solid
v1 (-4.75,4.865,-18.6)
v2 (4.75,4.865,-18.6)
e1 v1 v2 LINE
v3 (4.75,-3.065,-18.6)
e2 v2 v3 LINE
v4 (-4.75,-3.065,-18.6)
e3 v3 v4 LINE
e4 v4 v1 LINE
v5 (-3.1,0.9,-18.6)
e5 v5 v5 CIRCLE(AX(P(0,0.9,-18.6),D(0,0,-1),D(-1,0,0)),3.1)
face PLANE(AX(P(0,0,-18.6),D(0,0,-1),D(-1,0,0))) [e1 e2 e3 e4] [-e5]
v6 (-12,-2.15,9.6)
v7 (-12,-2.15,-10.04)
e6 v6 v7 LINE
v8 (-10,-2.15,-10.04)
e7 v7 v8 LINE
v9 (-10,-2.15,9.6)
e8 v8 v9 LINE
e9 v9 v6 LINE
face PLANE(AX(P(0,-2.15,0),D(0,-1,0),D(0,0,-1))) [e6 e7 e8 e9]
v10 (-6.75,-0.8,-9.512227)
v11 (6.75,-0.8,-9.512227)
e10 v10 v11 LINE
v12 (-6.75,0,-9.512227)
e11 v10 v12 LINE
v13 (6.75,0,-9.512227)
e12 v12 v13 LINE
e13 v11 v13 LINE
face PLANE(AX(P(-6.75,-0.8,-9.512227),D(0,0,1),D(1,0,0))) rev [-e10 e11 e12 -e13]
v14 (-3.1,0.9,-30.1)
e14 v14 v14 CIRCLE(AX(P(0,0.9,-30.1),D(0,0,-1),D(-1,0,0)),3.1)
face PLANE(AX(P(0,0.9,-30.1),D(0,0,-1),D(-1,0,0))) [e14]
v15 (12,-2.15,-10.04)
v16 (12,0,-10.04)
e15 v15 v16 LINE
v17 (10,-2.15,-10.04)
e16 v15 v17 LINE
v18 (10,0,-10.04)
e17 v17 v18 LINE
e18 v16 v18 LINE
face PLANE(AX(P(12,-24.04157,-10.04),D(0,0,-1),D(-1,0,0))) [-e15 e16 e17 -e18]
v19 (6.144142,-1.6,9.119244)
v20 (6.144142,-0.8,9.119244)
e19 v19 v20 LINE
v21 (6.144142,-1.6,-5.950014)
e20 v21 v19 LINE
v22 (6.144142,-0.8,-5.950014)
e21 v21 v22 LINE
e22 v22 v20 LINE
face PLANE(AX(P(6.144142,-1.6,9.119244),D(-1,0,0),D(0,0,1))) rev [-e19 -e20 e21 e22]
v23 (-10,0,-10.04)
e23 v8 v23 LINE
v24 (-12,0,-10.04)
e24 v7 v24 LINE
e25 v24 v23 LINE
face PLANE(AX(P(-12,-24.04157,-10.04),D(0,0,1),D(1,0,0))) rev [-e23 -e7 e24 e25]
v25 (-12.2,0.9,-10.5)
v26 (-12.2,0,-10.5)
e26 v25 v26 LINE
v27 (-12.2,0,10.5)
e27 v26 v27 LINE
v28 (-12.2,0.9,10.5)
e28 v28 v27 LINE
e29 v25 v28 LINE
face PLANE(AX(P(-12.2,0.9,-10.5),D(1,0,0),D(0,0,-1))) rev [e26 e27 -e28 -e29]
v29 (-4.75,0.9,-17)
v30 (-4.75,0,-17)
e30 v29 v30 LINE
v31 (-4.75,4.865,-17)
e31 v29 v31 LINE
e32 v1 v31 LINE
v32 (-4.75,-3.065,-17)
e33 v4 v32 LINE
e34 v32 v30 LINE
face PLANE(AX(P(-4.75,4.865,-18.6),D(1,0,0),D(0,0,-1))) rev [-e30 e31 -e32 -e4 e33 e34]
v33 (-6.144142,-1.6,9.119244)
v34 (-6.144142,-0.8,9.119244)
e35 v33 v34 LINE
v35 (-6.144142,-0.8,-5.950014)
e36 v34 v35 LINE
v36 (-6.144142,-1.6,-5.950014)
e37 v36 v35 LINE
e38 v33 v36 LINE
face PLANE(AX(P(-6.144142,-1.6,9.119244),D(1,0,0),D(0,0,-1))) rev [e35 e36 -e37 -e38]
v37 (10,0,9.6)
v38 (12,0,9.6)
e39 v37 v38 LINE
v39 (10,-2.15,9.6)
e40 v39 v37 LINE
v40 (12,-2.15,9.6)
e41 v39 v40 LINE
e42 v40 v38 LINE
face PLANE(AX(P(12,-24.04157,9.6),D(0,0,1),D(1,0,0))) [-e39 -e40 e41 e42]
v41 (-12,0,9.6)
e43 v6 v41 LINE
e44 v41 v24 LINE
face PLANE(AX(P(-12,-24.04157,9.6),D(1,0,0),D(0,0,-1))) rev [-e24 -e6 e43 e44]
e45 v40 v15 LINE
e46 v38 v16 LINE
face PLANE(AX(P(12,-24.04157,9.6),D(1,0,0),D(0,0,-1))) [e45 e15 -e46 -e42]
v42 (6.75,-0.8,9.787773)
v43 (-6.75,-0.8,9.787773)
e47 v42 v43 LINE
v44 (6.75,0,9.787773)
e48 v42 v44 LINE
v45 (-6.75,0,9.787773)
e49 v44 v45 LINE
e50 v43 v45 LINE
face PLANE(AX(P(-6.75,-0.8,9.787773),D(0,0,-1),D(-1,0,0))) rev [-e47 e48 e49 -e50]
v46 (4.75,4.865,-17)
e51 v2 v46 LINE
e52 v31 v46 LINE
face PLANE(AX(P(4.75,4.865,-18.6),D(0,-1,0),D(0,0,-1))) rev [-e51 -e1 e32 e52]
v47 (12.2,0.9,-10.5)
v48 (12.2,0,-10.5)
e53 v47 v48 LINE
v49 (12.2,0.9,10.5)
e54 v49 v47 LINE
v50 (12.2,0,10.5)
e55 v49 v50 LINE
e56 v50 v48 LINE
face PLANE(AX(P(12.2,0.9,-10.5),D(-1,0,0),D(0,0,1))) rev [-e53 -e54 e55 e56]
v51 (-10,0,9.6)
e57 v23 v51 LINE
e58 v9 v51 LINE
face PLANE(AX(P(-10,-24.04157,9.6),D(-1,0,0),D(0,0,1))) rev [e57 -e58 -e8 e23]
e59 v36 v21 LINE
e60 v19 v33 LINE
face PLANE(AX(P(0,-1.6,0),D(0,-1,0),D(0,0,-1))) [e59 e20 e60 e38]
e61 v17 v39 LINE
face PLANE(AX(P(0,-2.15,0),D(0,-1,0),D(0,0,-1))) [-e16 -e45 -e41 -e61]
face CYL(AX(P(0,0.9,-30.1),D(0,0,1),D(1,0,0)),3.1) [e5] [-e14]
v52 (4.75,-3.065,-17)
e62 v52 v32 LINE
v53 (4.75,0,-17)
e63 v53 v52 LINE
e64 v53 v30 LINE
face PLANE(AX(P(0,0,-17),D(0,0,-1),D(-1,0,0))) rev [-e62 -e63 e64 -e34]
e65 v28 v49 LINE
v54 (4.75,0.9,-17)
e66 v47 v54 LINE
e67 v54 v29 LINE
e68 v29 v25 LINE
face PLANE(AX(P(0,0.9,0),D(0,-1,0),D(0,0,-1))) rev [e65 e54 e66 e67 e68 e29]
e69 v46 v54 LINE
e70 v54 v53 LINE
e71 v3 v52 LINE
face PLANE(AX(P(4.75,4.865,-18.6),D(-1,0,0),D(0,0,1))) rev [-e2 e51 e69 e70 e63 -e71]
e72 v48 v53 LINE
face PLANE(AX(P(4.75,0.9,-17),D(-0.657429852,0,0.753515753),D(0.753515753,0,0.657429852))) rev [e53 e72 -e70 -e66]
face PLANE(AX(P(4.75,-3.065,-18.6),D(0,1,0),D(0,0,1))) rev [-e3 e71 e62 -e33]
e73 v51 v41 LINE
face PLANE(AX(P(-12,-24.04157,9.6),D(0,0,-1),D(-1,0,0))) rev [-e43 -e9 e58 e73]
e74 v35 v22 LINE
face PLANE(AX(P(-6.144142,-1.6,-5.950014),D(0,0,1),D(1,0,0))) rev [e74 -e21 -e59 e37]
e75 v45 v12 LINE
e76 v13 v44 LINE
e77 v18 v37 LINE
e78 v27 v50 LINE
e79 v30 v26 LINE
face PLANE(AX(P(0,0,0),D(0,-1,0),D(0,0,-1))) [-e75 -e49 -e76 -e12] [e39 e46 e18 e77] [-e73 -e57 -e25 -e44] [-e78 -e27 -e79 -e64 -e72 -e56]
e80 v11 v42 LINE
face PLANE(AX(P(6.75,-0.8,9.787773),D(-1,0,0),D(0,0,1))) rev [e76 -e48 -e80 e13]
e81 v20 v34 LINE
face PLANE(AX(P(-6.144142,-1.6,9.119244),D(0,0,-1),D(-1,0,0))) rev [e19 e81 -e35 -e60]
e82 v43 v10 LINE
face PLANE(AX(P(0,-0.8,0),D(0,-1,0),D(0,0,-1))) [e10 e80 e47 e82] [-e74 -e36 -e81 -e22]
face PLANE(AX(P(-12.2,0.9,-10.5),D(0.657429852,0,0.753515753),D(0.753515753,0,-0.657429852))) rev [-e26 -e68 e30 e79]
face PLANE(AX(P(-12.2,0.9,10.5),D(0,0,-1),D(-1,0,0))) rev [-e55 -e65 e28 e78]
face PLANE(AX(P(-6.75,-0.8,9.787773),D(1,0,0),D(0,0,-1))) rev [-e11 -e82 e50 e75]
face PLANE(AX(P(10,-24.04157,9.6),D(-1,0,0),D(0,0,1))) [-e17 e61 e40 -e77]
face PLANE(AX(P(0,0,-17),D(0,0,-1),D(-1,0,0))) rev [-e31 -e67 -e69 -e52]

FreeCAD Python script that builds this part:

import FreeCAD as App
import Part
import Sketcher

V = App.Vector


def add_polygon(sketch, points):
    """Adds a closed chain of lines whose ends are joined by coincident constraints."""
    first, n = sketch.GeometryCount, len(points)
    for a, b in zip(points, points[1:] + points[:1]):
        sketch.addGeometry(Part.LineSegment(App.Vector(*a, 0), App.Vector(*b, 0)), False)
    for i in range(n):
        sketch.addConstraint(Sketcher.Constraint("Coincident", first + i, 2, first + (i + 1) % n, 1))

doc = App.newDocument("Part")
params = doc.addObject("Spreadsheet::Sheet", "Params")
for row, (alias, value) in enumerate([
    ("sketch1_height", "21 mm"),
    ("sketch1_width", "24.4 mm"),
    ("sketch1_width2", "9.5 mm"),
    ("pad1_length", "0.9 mm"),
    ("sketch2_width", "9.5 mm"),
    ("sketch2_height", "7.93 mm"),
    ("pad2_length", "1.6 mm"),
    ("sketch3_diameter", "6.2 mm"),
    ("pad3_length", "11.5 mm"),
    ("sketch4_width", "2 mm"),
    ("sketch4_height", "19.64 mm"),
    ("pad4_length", "2.15 mm"),
    ("sketch5_width", "13.5 mm"),
    ("sketch5_height", "19.3 mm"),
    ("pad5_length", "0.8 mm"),
    ("pad6_length", "0.8 mm"),
], start=1):
    params.set(f"A{row}", alias)
    params.set(f"B{row}", "=" + value)
    params.setAlias(f"B{row}", alias)

body = doc.addObject("PartDesign::Body", "Body")

# Sketch on XZ plane
sketch1 = doc.addObject("Sketcher::SketchObject", "Sketch")
body.addObject(sketch1)
sketch1.AttachmentSupport = (doc.XZ_Plane, [""])
sketch1.MapMode = "FlatFace"
add_polygon(sketch1, [(-12, -10), (-12, 10), (12, 10), (12, -10), (5, -17), (-5, -17)])  # lines 0-5
sketch1.addConstraint([
    Sketcher.Constraint("Vertical", 0),
    Sketcher.Constraint("Horizontal", 1),
    Sketcher.Constraint("Vertical", 2),
    Sketcher.Constraint("Horizontal", 4),
    Sketcher.Constraint("Symmetric", 0, 2, 2, 2, -1, 1),
    Sketcher.Constraint("Horizontal", 2, 2, 5, 2),
    Sketcher.Constraint("Equal", 3, 5),
    Sketcher.Constraint("DistanceY", 0, 1, 0, 2, 21.0),
    Sketcher.Constraint("DistanceX", 1, 1, 1, 2, 24.4),
    Sketcher.Constraint("DistanceX", 4, 2, 4, 1, 9.5),
    Sketcher.Constraint("DistanceY", 3, 2, -1, 1, 17.0),
])
sketch1.setExpression("Constraints[13]", "Params.sketch1_height")
sketch1.setExpression("Constraints[14]", "Params.sketch1_width")
sketch1.setExpression("Constraints[15]", "Params.sketch1_width2")
pad1 = doc.addObject("PartDesign::Pad", "Pad")
body.addObject(pad1)
pad1.Profile = sketch1
pad1.setExpression("Length", "Params.pad1_length")
pad1.Reversed = True

# Sketch on XY plane
sketch2 = doc.addObject("Sketcher::SketchObject", "Sketch001")
body.addObject(sketch2)
sketch2.AttachmentSupport = (doc.XY_Plane, [""])
sketch2.MapMode = "FlatFace"
sketch2.AttachmentOffset = App.Placement(V(0, 0, -17), App.Rotation())
add_polygon(sketch2, [(5, 5), (5, -3), (-5, -3), (-5, 5)])  # lines 0-3
sketch2.addConstraint([
    Sketcher.Constraint("Vertical", 0),
    Sketcher.Constraint("Horizontal", 1),
    Sketcher.Constraint("Vertical", 2),
    Sketcher.Constraint("Horizontal", 3),
    Sketcher.Constraint("DistanceX", 1, 2, 1, 1, 9.5),
    Sketcher.Constraint("DistanceY", 0, 2, 0, 1, 7.93),
    Sketcher.Constraint("DistanceX", -1, 1, 0, 2, 4.75),
    Sketcher.Constraint("DistanceY", 0, 2, -1, 1, 3.065),
])
sketch2.setExpression("Constraints[8]", "Params.sketch2_width")
sketch2.setExpression("Constraints[9]", "Params.sketch2_height")
pad2 = doc.addObject("PartDesign::Pad", "Pad001")
body.addObject(pad2)
pad2.Profile = sketch2
pad2.setExpression("Length", "Params.pad2_length")
pad2.Reversed = True

# Sketch on XY plane
sketch3 = doc.addObject("Sketcher::SketchObject", "Sketch002")
body.addObject(sketch3)
sketch3.AttachmentSupport = (doc.XY_Plane, [""])
sketch3.MapMode = "FlatFace"
sketch3.AttachmentOffset = App.Placement(V(0, 0, -18.6), App.Rotation())
sketch3.addGeometry(Part.Circle(V(0, 0.9, 0), V(0, 0, 1), 3.1), False)
sketch3.addConstraint([
    Sketcher.Constraint("PointOnObject", 0, 3, -2),
    Sketcher.Constraint("Diameter", 0, 6.2),
    Sketcher.Constraint("DistanceY", -1, 1, 0, 3, 0.9),
])
sketch3.setExpression("Constraints[1]", "Params.sketch3_diameter")
pad3 = doc.addObject("PartDesign::Pad", "Pad002")
body.addObject(pad3)
pad3.Profile = sketch3
pad3.setExpression("Length", "Params.pad3_length")
pad3.Reversed = True

# Sketch on XZ plane
sketch4 = doc.addObject("Sketcher::SketchObject", "Sketch003")
body.addObject(sketch4)
sketch4.AttachmentSupport = (doc.XZ_Plane, [""])
sketch4.MapMode = "FlatFace"
add_polygon(sketch4, [(-12, 9.6), (-12, -10), (-10, -10), (-10, 9.6)])  # lines 0-3
sketch4.addConstraint([
    Sketcher.Constraint("Vertical", 0),
    Sketcher.Constraint("Horizontal", 1),
    Sketcher.Constraint("Vertical", 2),
    Sketcher.Constraint("Horizontal", 3),
    Sketcher.Constraint("DistanceX", 1, 1, 1, 2, 2.0),
    Sketcher.Constraint("DistanceX", 0, 2, -1, 1, 12.0),
    Sketcher.Constraint("DistanceY", 0, 2, 0, 1, 19.64),
    Sketcher.Constraint("DistanceY", -1, 1, 2, 2, 9.6),
])
sketch4.setExpression("Constraints[8]", "Params.sketch4_width")
sketch4.setExpression("Constraints[10]", "Params.sketch4_height")
pad4 = doc.addObject("PartDesign::Pad", "Pad003")
body.addObject(pad4)
pad4.Profile = sketch4
pad4.setExpression("Length", "Params.pad4_length")
doc.recompute()

mirrored = doc.addObject("PartDesign::Mirrored", "Mirrored")
body.addObject(mirrored)
mirrored.Originals = [pad4]
mirrored.MirrorPlane = (doc.YZ_Plane, [""])
body.Tip = mirrored

# Sketch on XZ plane
sketch5 = doc.addObject("Sketcher::SketchObject", "Sketch004")
body.addObject(sketch5)
sketch5.AttachmentSupport = (doc.XZ_Plane, [""])
sketch5.MapMode = "FlatFace"
add_polygon(sketch5, [(-7, 10), (-7, -10), (7, -10), (7, 10)])  # lines 0-3
sketch5.addConstraint([
    Sketcher.Constraint("Vertical", 0),
    Sketcher.Constraint("Horizontal", 1),
    Sketcher.Constraint("Vertical", 2),
    Sketcher.Constraint("Horizontal", 3),
    Sketcher.Constraint("DistanceX", 1, 1, 1, 2, 13.5),
    Sketcher.Constraint("DistanceY", 0, 2, 0, 1, 19.3),
    Sketcher.Constraint("DistanceX", 0, 2, -1, 1, 6.75),
    Sketcher.Constraint("DistanceY", 0, 2, -1, 1, 9.512227),
])
sketch5.setExpression("Constraints[8]", "Params.sketch5_width")
sketch5.setExpression("Constraints[9]", "Params.sketch5_height")
pad5 = doc.addObject("PartDesign::Pad", "Pad004")
body.addObject(pad5)
pad5.Profile = sketch5
pad5.setExpression("Length", "Params.pad5_length")

# Sketch on XZ plane
sketch6 = doc.addObject("Sketcher::SketchObject", "Sketch005")
body.addObject(sketch6)
sketch6.AttachmentSupport = (doc.XZ_Plane, [""])
sketch6.MapMode = "FlatFace"
sketch6.AttachmentOffset = App.Placement(V(0, 0, 0.8), App.Rotation())
add_polygon(sketch6, [(-6, 9), (-6, -6), (6, -6), (6, 9)])  # lines 0-3
sketch6.addConstraint([
    Sketcher.Constraint("Vertical", 0),
    Sketcher.Constraint("Horizontal", 1),
    Sketcher.Constraint("Vertical", 2),
    Sketcher.Constraint("Horizontal", 3),
    Sketcher.Constraint("DistanceY", 0, 2, 0, 1, 15.069259),
    Sketcher.Constraint("DistanceX", 1, 1, 1, 2, 12.288283),
    Sketcher.Constraint("DistanceX", 0, 2, -1, 1, 6.144142),
    Sketcher.Constraint("DistanceY", 0, 2, -1, 1, 5.950014),
])
pad6 = doc.addObject("PartDesign::Pad", "Pad005")
body.addObject(pad6)
pad6.Profile = sketch6
pad6.setExpression("Length", "Params.pad6_length")

doc.recompute()
